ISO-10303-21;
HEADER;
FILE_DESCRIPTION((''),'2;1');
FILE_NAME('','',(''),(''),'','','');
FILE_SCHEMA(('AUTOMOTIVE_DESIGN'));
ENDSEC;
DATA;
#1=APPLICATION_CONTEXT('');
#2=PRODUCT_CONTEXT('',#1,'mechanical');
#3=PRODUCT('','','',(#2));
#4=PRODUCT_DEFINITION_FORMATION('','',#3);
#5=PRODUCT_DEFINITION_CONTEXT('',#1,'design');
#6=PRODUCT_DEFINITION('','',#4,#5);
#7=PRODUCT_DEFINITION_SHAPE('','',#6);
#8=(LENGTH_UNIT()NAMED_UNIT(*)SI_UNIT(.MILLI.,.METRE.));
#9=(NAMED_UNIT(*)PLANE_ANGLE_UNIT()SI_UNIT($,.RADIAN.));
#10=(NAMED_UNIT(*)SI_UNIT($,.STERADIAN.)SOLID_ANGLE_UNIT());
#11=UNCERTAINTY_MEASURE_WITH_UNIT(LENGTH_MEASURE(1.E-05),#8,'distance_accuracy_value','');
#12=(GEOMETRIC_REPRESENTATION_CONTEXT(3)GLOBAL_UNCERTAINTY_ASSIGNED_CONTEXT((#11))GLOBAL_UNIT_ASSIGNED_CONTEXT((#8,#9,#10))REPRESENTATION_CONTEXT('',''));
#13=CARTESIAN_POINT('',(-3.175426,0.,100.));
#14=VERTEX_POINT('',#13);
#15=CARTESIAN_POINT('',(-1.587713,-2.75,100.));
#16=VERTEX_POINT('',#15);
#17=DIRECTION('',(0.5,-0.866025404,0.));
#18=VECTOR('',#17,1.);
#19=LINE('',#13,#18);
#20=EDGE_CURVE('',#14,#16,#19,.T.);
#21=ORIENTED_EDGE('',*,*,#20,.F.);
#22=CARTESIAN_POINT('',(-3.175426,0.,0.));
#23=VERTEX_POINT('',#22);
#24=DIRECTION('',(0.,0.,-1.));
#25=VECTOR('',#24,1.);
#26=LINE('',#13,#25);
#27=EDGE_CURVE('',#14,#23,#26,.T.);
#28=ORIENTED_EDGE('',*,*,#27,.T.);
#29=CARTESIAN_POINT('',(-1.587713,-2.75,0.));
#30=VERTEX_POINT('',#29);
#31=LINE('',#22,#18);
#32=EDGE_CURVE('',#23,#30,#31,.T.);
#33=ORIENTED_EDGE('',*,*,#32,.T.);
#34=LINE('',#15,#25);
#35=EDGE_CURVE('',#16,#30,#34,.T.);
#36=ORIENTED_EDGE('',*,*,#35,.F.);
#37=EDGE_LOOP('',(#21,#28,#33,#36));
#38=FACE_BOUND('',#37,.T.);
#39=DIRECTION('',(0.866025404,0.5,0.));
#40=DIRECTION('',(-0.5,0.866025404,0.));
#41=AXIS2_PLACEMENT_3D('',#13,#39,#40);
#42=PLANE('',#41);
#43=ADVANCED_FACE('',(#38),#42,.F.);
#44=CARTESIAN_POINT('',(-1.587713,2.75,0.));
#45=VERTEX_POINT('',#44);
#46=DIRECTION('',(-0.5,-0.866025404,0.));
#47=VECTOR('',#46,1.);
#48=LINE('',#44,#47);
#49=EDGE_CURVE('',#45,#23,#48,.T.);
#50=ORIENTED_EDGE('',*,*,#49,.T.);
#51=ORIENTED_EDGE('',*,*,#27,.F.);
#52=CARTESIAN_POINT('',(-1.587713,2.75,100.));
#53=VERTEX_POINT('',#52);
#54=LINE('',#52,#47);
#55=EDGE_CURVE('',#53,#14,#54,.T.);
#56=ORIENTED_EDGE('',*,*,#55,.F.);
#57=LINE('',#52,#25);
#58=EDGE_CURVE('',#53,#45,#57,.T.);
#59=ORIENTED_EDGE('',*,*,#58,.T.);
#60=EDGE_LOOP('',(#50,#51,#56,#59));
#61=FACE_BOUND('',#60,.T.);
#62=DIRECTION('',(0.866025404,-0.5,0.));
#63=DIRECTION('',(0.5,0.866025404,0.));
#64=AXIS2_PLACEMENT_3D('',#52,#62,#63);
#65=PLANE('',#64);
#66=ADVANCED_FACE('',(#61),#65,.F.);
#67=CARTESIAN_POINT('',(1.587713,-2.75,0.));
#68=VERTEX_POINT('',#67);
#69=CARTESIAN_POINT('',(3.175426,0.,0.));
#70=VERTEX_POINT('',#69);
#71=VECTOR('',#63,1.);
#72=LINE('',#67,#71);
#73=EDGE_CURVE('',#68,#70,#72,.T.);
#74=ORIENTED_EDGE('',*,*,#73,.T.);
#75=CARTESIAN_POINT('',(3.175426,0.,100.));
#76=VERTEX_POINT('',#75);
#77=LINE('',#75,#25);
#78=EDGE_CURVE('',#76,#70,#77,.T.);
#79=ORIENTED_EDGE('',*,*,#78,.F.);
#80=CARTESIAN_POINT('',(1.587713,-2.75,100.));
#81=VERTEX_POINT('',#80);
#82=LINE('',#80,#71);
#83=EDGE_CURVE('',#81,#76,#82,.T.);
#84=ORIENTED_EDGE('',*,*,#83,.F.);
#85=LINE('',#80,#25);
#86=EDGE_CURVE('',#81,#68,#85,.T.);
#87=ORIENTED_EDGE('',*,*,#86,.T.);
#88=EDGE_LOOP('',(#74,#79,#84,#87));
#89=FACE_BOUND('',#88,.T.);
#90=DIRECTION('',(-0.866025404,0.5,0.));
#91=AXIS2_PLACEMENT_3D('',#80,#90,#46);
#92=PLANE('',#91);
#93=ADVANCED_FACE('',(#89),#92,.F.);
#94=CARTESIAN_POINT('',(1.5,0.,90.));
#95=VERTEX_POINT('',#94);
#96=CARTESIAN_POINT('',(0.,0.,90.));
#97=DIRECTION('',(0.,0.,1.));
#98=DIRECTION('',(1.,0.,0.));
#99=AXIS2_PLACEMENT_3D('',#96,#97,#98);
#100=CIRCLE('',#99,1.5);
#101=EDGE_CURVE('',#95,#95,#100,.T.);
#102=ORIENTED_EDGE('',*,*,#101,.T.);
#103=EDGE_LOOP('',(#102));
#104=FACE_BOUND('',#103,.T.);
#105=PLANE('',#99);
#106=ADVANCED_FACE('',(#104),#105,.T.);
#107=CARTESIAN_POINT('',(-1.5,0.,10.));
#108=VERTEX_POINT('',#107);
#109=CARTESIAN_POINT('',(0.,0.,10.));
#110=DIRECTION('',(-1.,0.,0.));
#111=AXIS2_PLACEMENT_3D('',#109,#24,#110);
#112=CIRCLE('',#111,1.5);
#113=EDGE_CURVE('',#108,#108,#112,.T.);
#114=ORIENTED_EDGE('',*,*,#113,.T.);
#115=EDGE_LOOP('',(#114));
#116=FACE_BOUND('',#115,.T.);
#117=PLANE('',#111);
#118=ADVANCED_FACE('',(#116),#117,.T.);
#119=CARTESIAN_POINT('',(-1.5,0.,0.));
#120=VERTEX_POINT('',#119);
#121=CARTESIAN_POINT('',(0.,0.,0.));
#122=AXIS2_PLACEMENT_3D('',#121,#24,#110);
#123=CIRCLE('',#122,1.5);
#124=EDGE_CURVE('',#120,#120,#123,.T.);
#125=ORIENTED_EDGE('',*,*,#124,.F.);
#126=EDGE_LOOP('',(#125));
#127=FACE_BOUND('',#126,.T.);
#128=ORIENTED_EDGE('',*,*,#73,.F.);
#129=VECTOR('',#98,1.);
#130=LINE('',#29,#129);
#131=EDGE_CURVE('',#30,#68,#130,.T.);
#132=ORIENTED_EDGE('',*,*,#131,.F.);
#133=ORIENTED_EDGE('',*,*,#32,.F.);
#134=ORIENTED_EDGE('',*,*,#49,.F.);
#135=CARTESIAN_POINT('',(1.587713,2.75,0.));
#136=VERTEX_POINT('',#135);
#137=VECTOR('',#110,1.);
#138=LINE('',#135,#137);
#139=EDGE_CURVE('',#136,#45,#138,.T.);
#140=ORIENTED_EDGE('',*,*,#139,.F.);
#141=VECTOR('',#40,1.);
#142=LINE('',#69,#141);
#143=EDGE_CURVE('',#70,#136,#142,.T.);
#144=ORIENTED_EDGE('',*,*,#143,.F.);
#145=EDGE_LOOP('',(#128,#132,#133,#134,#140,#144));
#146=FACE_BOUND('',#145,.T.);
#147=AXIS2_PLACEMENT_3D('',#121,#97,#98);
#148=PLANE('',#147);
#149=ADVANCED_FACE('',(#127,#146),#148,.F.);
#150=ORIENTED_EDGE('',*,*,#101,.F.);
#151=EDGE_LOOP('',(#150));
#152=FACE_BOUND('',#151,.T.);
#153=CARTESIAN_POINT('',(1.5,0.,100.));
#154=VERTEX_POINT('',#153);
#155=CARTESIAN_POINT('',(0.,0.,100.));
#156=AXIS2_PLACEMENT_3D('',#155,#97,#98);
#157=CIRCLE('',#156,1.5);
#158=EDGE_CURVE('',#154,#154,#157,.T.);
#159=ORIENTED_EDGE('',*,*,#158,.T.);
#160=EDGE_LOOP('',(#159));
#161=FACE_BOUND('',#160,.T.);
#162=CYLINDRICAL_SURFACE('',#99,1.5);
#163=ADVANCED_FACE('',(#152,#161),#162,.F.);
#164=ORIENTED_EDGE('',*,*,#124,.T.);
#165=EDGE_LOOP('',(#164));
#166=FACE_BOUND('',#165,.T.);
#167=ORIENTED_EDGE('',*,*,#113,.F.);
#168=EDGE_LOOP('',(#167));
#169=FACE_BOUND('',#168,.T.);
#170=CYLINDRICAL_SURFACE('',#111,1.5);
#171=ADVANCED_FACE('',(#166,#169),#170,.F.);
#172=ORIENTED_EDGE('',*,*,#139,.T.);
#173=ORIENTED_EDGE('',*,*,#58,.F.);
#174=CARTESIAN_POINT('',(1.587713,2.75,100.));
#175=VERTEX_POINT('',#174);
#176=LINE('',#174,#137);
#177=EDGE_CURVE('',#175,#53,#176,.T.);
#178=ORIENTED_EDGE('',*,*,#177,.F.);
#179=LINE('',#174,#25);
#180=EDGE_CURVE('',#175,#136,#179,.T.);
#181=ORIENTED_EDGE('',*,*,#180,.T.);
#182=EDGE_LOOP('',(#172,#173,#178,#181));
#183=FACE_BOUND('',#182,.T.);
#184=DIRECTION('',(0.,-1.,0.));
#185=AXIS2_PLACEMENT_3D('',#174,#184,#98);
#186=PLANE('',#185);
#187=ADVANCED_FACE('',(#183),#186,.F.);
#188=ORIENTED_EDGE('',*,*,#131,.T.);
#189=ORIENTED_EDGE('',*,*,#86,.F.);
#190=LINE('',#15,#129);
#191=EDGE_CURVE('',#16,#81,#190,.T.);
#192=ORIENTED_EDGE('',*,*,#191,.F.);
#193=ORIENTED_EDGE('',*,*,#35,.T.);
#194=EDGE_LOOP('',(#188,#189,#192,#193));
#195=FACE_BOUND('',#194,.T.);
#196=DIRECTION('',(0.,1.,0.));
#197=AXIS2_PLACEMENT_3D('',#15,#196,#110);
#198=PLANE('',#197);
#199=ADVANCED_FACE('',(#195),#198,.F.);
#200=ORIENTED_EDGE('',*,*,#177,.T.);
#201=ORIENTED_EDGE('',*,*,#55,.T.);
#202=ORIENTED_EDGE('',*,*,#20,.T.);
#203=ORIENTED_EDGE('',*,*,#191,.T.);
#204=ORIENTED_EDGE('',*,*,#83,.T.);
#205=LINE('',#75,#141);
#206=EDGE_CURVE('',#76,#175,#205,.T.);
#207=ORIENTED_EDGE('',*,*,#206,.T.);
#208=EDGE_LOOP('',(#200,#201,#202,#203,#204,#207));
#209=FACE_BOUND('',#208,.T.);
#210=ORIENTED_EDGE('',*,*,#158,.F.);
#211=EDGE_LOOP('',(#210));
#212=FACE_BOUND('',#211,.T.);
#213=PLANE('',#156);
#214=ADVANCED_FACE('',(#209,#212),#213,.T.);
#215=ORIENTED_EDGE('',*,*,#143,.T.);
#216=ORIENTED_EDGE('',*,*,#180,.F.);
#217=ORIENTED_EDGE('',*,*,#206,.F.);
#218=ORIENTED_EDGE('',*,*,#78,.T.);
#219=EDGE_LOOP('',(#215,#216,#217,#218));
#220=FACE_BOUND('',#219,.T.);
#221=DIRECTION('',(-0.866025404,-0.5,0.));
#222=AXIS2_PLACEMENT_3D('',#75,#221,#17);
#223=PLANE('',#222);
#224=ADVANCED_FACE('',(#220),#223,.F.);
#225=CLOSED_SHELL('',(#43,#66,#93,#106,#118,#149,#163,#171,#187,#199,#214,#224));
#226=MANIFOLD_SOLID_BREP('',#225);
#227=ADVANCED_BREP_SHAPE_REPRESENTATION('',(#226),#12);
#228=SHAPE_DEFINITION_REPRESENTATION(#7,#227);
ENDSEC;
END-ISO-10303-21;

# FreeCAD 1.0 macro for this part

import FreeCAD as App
import Part
import Sketcher

V = App.Vector
Q = App.Units.Quantity


def add_polygon(sketch, points):
    """Adds a closed chain of lines whose ends are joined by coincident constraints."""
    first, n = sketch.GeometryCount, len(points)
    for a, b in zip(points, points[1:] + points[:1]):
        sketch.addGeometry(Part.LineSegment(App.Vector(*a, 0), App.Vector(*b, 0)), False)
    for i in range(n):
        sketch.addConstraint(Sketcher.Constraint("Coincident", first + i, 2, first + (i + 1) % n, 1))

doc = App.newDocument("Part")
body = doc.addObject("PartDesign::Body", "Body")

sketch1 = body.newObject("Sketcher::SketchObject", "Sketch")
sketch1.AttachmentSupport = (doc.getObject("XY_Plane"), [""])
sketch1.MapMode = "FlatFace"
add_polygon(sketch1, [(1.587713, -2.75), (3.175426, 0), (1.587713, 2.75), (-1.587713, 2.75), (-3.175426, 0), (-1.587713, -2.75)])
sketch1.addConstraint(Sketcher.Constraint("Horizontal", 2))
sketch1.addConstraint(Sketcher.Constraint("Horizontal", 5))
sketch1.addConstraint(Sketcher.Constraint("Symmetric", 0, 2, 3, 2, -1, 1))
sketch1.addConstraint(Sketcher.Constraint("Symmetric", 1, 2, 4, 2, -1, 1))
sketch1.addConstraint(Sketcher.Constraint("PointOnObject", 0, 2, -1))
sketch1.addConstraint(Sketcher.Constraint("Parallel", 0, 3))
sketch1.addConstraint(Sketcher.Constraint("Vertical", 2, 2, 4, 2))
sketch1.addConstraint(Sketcher.Constraint("Angle", 0, Q("60 deg")))
sketch1.addConstraint(Sketcher.Constraint("DistanceY", 4, 2, 2, 2, 5.5))
sketch1.addConstraint(Sketcher.Constraint("DistanceX", 2, 2, 2, 1, 3.175426))
pad1 = body.newObject("PartDesign::Pad", "Pad")
pad1.Profile = sketch1
pad1.Length = 100

sketch2 = body.newObject("Sketcher::SketchObject", "Sketch001")
sketch2.AttachmentSupport = (doc.getObject("XY_Plane"), [""])
sketch2.MapMode = "FlatFace"
sketch2.addGeometry(Part.Circle(V(0, 0, 0), V(0, 0, 1), 1.5), False)
sketch2.addConstraint(Sketcher.Constraint("Coincident", 0, 3, -1, 1))
sketch2.addConstraint(Sketcher.Constraint("Diameter", 0, 3.0))
pocket1 = body.newObject("PartDesign::Pocket", "Pocket")
pocket1.Profile = sketch2
pocket1.Length = 10
pocket1.Reversed = True

sketch3 = body.newObject("Sketcher::SketchObject", "Sketch002")
sketch3.AttachmentSupport = (doc.getObject("XY_Plane"), [""])
sketch3.MapMode = "FlatFace"
sketch3.AttachmentOffset = App.Placement(V(0, 0, 90), App.Rotation())
sketch3.addGeometry(Part.Circle(V(0, 0, 0), V(0, 0, 1), 1.5), False)
sketch3.addConstraint(Sketcher.Constraint("Coincident", 0, 3, -1, 1))
sketch3.addConstraint(Sketcher.Constraint("Diameter", 0, 3.0))
pocket2 = body.newObject("PartDesign::Pocket", "Pocket001")
pocket2.Profile = sketch3
pocket2.Length = 10
pocket2.Reversed = True

doc.recompute()
